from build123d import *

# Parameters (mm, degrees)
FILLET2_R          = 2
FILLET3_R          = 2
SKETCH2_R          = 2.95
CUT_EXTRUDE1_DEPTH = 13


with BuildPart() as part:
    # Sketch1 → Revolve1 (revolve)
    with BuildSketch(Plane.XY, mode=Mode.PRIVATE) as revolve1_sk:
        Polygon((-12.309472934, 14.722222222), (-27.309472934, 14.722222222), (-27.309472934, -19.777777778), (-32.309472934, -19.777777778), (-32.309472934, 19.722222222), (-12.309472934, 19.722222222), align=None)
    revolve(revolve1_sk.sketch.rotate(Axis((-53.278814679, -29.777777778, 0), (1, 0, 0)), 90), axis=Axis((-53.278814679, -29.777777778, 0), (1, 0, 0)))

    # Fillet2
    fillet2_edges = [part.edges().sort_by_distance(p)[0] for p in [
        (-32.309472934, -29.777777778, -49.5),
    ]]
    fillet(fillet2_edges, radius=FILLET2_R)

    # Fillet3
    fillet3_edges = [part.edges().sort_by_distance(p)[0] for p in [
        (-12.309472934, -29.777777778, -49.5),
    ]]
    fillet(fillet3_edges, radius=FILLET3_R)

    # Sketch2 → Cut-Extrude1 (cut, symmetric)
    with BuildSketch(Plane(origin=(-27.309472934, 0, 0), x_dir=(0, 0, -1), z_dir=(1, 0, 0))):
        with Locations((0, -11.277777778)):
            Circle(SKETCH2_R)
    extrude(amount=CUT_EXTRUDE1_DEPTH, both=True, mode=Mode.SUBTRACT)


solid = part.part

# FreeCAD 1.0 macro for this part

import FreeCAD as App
import Part
import Sketcher
Q = App.Units.Quantity


def edges_at(feature, points):
    """Names of the edges that pass closest to the given points."""
    edges = feature.Shape.Edges
    near = lambda p: min(range(len(edges)), key=lambda i: edges[i].distToShape(Part.Vertex(*p))[0])
    return sorted({f"Edge{near(p) + 1}" for p in points})


def add_polygon(sketch, points):
    """Adds a closed chain of lines whose ends are joined by coincident constraints."""
    first, n = sketch.GeometryCount, len(points)
    for a, b in zip(points, points[1:] + points[:1]):
        sketch.addGeometry(Part.LineSegment(App.Vector(*a, 0), App.Vector(*b, 0)), False)
    for i in range(n):
        sketch.addConstraint(Sketcher.Constraint("Coincident", first + i, 2, first + (i + 1) % n, 1))

doc = App.newDocument("Part")
body = doc.addObject("PartDesign::Body", "Body")

# Sketch on XY plane
sketch1 = body.newObject("Sketcher::SketchObject", "Sketch")
sketch1.AttachmentSupport = (doc.getObject("XY_Plane"), [""])
sketch1.MapMode = "FlatFace"
add_polygon(sketch1, [(-27, 15), (-12, 15), (-12, 20), (-32, 20), (-32, -20), (-27, -20)])  # lines 0-5
sketch1.addGeometry(Part.LineSegment(App.Vector(-32, -30, 0), App.Vector(-12, -30, 0)), True)  # axis
sketch1.addConstraint(Sketcher.Constraint("Horizontal", 0))
sketch1.addConstraint(Sketcher.Constraint("Vertical", 1))
sketch1.addConstraint(Sketcher.Constraint("Horizontal", 2))
sketch1.addConstraint(Sketcher.Constraint("Vertical", 3))
sketch1.addConstraint(Sketcher.Constraint("Horizontal", 4))
sketch1.addConstraint(Sketcher.Constraint("Vertical", 5))
sketch1.addConstraint(Sketcher.Constraint("Horizontal", 6))
sketch1.addConstraint(Sketcher.Constraint("Vertical", 3, 2, 6, 1))
sketch1.addConstraint(Sketcher.Constraint("Vertical", 1, 2, 6, 2))
sketch1.addConstraint(Sketcher.Constraint("Equal", 4, 1))
sketch1.addConstraint(Sketcher.Constraint("DistanceX", 0, 1, 0, 2, Q("15 mm")))
sketch1.addConstraint(Sketcher.Constraint("DistanceX", 2, 2, 2, 1, Q("20 mm")))
sketch1.addConstraint(Sketcher.Constraint("DistanceY", 3, 2, 3, 1, Q("39.5 mm")))
sketch1.addConstraint(Sketcher.Constraint("DistanceY", 6, 1, 3, 2, Q("10 mm")))
sketch1.addConstraint(Sketcher.Constraint("DistanceX", 0, 2, -1, 1, Q("12.309473 mm")))
sketch1.addConstraint(Sketcher.Constraint("DistanceY", -1, 1, 0, 2, Q("14.722222 mm")))
revolution = body.newObject("PartDesign::Revolution", "Revolution")
revolution.Profile = sketch1
revolution.ReferenceAxis = (sketch1, ["Axis0"])
revolution.Angle = 360
doc.recompute()

fillet = body.newObject("PartDesign::Fillet", "Fillet")
fillet.Base = (revolution, edges_at(revolution, [(-32.309, -29.778, -49.5)]))
fillet.Radius = 2
doc.recompute()

fillet2 = body.newObject("PartDesign::Fillet", "Fillet001")
fillet2.Base = (fillet, edges_at(fillet, [(-12.309, -29.778, -49.5)]))
fillet2.Radius = 2

# Sketch on YZ plane
sketch2 = body.newObject("Sketcher::SketchObject", "Sketch001")
sketch2.AttachmentSupport = (doc.getObject("YZ_Plane"), [""])
sketch2.MapMode = "FlatFace"
sketch2.AttachmentOffset = App.Placement(App.Vector(0, 0, -27.309473), App.Rotation())
sketch2.addGeometry(Part.Circle(App.Vector(-11.3, 0, 0), App.Vector(0, 0, 1), 3), False)
sketch2.addConstraint(Sketcher.Constraint("PointOnObject", 0, 3, -1))
sketch2.addConstraint(Sketcher.Constraint("Diameter", 0, Q("5.9 mm")))
sketch2.addConstraint(Sketcher.Constraint("DistanceX", 0, 3, -1, 1, Q("11.277778 mm")))
pocket1 = body.newObject("PartDesign::Pocket", "Pocket")
pocket1.Profile = sketch2
pocket1.Length = 26
pocket1.Midplane = True

doc.recompute()
